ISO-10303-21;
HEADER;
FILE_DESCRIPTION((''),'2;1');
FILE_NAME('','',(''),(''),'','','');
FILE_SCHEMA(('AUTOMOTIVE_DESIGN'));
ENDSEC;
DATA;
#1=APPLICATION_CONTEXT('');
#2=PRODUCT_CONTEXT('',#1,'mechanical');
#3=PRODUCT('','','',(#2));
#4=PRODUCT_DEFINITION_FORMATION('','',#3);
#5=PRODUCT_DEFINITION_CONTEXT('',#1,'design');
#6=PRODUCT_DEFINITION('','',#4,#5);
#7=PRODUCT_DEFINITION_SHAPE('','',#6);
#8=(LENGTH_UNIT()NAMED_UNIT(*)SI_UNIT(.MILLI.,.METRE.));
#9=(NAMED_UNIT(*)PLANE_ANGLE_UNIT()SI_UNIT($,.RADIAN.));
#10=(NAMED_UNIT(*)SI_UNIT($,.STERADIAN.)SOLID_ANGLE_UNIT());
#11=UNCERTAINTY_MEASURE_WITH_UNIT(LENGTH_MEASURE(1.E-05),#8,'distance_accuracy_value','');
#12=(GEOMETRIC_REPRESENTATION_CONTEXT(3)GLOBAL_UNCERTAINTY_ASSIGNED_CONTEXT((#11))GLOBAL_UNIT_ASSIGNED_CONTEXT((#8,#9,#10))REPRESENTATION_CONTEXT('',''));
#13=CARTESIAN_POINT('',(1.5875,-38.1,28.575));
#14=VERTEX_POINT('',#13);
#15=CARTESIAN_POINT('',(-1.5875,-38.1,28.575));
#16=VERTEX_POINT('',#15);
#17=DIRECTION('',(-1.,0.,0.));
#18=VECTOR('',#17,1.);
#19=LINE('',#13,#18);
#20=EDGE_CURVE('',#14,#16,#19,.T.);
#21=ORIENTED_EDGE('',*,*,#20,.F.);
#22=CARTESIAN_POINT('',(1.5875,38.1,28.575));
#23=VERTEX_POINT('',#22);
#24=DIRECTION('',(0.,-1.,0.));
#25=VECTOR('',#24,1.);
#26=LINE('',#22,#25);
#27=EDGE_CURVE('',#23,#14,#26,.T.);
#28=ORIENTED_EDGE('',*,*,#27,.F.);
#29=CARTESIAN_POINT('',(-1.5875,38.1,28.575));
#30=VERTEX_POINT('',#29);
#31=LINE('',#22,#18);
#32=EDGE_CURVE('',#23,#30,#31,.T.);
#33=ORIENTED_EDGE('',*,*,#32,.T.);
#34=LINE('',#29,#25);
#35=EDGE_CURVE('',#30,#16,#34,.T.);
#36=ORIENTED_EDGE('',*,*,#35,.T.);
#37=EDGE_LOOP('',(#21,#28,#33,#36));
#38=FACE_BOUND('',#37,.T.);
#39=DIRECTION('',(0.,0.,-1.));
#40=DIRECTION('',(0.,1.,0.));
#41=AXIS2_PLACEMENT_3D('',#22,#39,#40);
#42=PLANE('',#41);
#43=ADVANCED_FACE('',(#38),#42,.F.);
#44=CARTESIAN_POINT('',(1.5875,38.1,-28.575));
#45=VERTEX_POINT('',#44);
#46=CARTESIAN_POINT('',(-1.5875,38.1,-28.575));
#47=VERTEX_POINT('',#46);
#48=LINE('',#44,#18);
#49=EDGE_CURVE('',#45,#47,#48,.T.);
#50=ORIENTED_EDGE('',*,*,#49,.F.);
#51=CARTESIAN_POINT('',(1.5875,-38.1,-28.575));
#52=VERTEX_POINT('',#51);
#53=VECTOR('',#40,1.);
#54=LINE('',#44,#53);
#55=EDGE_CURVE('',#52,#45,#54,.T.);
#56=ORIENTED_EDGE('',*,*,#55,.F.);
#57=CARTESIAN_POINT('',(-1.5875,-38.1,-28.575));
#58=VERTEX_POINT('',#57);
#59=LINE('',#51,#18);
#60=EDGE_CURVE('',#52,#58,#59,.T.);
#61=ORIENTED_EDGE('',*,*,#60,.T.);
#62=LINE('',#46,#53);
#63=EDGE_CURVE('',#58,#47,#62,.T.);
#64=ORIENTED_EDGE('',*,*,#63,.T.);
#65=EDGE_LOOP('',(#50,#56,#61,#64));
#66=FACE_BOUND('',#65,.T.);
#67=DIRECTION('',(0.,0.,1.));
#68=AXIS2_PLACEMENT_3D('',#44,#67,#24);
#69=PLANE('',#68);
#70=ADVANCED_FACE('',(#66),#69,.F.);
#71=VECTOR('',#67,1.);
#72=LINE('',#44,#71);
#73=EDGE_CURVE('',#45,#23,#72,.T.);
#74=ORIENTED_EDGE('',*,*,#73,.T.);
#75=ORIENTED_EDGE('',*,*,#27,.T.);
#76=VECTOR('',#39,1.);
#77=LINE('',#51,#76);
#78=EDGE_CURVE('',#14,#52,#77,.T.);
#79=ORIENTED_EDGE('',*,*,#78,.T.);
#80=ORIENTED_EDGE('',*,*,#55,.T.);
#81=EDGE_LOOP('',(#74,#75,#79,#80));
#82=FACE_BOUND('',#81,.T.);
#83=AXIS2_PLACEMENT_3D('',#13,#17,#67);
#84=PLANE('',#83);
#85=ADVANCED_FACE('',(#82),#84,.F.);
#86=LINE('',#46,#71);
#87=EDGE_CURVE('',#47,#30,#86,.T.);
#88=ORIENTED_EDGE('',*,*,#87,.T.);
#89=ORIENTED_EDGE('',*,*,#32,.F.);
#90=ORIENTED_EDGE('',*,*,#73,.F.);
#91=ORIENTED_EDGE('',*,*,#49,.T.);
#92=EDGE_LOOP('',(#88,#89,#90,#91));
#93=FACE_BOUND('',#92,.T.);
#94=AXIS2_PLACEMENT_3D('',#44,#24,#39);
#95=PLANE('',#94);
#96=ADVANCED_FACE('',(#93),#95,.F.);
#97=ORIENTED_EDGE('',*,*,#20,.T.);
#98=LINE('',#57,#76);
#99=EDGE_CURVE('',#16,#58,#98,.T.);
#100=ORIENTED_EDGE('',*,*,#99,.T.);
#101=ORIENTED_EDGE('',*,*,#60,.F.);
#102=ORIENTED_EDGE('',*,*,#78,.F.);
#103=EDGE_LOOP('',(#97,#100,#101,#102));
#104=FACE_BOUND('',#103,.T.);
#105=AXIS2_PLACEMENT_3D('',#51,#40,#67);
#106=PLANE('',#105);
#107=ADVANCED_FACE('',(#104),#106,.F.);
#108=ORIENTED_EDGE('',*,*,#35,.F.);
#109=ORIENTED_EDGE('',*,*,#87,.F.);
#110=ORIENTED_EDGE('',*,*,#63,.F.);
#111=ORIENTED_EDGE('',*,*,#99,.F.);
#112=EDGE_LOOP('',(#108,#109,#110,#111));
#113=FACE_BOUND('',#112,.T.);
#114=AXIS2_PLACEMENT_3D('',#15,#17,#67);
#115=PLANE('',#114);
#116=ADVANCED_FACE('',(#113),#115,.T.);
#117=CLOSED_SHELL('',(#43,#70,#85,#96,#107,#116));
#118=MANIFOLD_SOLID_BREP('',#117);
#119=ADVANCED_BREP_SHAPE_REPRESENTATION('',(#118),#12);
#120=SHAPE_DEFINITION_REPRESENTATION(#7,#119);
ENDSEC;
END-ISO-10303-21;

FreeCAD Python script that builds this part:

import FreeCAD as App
import Part
import Sketcher

V = App.Vector
Q = App.Units.Quantity

doc = App.newDocument("Part")
body = doc.addObject("PartDesign::Body", "Body")

# Sketch on YZ plane
sketch1 = body.newObject("Sketcher::SketchObject", "Sketch")
sketch1.AttachmentSupport = (doc.getObject("YZ_Plane"), [""])
sketch1.MapMode = "FlatFace"
sketch1.addGeometry([
    Part.LineSegment(V(38, 29, 0), V(-38, 29, 0)),
    Part.LineSegment(V(-38, 29, 0), V(-38, -29, 0)),
    Part.LineSegment(V(-38, -29, 0), V(38, -29, 0)),
    Part.LineSegment(V(38, -29, 0), V(38, 29, 0)),
], False)
sketch1.addConstraint([
    Sketcher.Constraint("Coincident", 0, 2, 1, 1),
    Sketcher.Constraint("Coincident", 1, 2, 2, 1),
    Sketcher.Constraint("Coincident", 2, 2, 3, 1),
    Sketcher.Constraint("Coincident", 3, 2, 0, 1),
    Sketcher.Constraint("Horizontal", 0),
    Sketcher.Constraint("Vertical", 1),
    Sketcher.Constraint("Horizontal", 2),
    Sketcher.Constraint("Vertical", 3),
    Sketcher.Constraint("Symmetric", 0, 2, 2, 2, -1, 1),
    Sketcher.Constraint("DistanceX", 0, 2, 0, 1, Q("3 in")),
    Sketcher.Constraint("DistanceY", 1, 2, 1, 1, Q("2.25 in")),
])
pad1 = body.newObject("PartDesign::Pad", "Pad")
pad1.Profile = sketch1
pad1.Length = Q("0.125 in")
pad1.Midplane = True

doc.recompute()
